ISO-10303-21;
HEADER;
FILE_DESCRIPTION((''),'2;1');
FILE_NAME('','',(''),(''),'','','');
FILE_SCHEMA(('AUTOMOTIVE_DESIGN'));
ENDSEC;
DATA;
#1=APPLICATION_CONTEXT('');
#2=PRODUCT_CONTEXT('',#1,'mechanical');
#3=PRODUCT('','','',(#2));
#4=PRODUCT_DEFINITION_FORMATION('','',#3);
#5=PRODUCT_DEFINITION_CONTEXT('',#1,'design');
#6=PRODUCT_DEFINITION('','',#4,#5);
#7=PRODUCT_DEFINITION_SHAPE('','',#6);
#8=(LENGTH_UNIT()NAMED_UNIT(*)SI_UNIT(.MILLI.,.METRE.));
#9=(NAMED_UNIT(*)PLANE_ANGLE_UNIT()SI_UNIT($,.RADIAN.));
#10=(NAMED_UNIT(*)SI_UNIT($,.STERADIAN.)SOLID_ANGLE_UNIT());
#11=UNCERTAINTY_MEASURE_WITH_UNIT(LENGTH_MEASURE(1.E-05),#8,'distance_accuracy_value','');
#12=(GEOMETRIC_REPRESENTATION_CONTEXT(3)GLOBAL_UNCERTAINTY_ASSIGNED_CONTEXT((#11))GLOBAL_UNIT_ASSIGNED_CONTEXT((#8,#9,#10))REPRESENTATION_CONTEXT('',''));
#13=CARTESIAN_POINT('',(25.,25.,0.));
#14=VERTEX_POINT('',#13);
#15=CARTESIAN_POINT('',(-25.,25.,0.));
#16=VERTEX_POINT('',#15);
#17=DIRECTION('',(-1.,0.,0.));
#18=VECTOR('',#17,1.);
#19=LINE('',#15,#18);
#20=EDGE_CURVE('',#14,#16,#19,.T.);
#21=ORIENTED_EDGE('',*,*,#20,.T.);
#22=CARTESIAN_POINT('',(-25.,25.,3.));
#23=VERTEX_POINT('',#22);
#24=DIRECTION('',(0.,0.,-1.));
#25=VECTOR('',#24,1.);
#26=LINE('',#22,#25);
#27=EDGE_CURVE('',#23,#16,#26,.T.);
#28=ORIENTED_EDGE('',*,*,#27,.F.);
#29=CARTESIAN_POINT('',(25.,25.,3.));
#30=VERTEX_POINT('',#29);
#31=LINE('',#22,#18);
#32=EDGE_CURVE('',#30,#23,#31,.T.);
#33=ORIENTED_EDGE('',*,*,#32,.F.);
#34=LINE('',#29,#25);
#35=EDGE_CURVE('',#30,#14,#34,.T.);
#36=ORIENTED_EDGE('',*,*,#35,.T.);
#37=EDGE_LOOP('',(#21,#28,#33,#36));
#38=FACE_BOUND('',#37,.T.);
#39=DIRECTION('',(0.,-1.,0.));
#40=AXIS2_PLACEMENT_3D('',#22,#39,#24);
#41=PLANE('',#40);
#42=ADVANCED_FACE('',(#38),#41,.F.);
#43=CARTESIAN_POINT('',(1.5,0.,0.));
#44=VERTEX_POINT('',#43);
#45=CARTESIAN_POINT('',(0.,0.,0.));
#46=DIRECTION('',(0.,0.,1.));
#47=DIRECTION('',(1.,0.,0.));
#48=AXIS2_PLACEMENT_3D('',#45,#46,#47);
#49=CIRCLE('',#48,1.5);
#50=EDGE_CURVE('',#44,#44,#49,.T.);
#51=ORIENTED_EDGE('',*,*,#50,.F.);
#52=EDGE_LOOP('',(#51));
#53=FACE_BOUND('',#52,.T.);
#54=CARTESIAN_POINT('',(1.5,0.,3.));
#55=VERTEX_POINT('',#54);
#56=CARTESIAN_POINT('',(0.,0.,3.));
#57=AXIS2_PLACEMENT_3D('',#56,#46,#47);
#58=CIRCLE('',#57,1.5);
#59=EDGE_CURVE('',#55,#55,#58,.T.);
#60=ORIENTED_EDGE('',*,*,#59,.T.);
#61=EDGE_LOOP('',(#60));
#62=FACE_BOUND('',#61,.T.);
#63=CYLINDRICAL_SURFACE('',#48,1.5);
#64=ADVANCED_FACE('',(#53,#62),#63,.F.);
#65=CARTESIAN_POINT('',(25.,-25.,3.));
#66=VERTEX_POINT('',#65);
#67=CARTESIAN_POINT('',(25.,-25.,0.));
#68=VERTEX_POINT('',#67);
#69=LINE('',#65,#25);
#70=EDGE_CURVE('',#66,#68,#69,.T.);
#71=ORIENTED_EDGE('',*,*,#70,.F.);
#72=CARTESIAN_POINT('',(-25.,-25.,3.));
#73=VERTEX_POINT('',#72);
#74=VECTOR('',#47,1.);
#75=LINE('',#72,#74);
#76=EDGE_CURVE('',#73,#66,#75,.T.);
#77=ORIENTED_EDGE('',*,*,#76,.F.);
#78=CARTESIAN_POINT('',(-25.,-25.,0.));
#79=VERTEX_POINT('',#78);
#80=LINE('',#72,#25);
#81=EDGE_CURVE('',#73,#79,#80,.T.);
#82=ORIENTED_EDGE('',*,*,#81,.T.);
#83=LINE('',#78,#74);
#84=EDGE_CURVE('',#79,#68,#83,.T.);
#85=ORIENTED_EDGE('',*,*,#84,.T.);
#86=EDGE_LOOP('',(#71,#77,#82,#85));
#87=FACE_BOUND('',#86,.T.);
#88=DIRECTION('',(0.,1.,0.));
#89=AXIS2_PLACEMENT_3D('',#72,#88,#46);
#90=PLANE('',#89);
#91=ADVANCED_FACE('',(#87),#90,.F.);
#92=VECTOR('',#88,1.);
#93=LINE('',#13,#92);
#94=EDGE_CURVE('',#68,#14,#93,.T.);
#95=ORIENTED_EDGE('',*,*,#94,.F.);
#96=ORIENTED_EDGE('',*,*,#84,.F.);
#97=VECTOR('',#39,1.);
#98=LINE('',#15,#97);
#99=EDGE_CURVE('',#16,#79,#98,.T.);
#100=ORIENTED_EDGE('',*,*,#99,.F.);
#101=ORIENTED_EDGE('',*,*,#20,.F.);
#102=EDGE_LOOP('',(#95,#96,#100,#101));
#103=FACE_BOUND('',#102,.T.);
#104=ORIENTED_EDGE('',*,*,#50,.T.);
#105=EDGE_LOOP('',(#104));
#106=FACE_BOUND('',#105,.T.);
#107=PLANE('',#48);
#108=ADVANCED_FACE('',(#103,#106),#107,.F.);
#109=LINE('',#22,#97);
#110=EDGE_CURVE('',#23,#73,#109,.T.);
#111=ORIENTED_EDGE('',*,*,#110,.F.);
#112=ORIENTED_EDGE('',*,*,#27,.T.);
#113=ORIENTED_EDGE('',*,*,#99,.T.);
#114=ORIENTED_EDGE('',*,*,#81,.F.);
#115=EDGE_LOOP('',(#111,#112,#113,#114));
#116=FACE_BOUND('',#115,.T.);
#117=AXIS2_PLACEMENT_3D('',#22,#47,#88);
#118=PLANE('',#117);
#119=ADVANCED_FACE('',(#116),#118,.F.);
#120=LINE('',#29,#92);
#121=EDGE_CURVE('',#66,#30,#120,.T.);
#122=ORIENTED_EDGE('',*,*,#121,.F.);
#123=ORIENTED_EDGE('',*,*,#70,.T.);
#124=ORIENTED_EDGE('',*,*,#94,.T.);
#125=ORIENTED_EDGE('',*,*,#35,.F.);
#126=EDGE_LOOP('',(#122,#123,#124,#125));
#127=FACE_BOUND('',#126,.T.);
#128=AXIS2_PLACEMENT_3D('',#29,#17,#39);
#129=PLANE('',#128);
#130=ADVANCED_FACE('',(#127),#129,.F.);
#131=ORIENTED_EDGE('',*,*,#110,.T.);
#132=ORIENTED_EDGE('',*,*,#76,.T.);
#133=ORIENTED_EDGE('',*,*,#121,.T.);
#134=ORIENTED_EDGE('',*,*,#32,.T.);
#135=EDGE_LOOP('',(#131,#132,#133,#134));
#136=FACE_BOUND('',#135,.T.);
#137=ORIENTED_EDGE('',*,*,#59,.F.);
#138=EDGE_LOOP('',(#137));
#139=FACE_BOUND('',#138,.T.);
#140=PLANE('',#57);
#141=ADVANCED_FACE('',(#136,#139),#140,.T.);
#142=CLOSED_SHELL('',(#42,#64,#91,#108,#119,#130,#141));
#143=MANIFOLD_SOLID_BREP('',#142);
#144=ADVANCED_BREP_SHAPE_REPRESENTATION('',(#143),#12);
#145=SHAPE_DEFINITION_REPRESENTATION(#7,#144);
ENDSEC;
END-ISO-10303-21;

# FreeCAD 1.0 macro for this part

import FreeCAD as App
import Part
import Sketcher
Q = App.Units.Quantity


def add_polygon(sketch, points):
    """Adds a closed chain of lines whose ends are joined by coincident constraints."""
    first, n = sketch.GeometryCount, len(points)
    for a, b in zip(points, points[1:] + points[:1]):
        sketch.addGeometry(Part.LineSegment(App.Vector(*a, 0), App.Vector(*b, 0)), False)
    for i in range(n):
        sketch.addConstraint(Sketcher.Constraint("Coincident", first + i, 2, first + (i + 1) % n, 1))

doc = App.newDocument("Part")
params = doc.addObject("Spreadsheet::Sheet", "Params")
for row, (alias, value) in enumerate([
    ("sketch1_width", "50 mm"),
    ("pad1_length", "3 mm"),
    ("sketch2_diameter", "3 mm"),
], start=1):
    params.set(f"A{row}", alias)
    params.set(f"B{row}", "=" + value)
    params.setAlias(f"B{row}", alias)

body = doc.addObject("PartDesign::Body", "Body")

sketch1 = body.newObject("Sketcher::SketchObject", "Sketch")
sketch1.AttachmentSupport = (doc.getObject("XY_Plane"), [""])
sketch1.MapMode = "FlatFace"
add_polygon(sketch1, [(-25, 25), (-25, -25), (25, -25), (25, 25)])
sketch1.addConstraint([
    Sketcher.Constraint("Vertical", 0),
    Sketcher.Constraint("Horizontal", 1),
    Sketcher.Constraint("Vertical", 2),
    Sketcher.Constraint("Horizontal", 3),
    Sketcher.Constraint("Symmetric", 0, 2, 2, 2, -1, 1),
    Sketcher.Constraint("Equal", 3, 0),
    Sketcher.Constraint("DistanceX", 1, 1, 1, 2, Q("50 mm")),
])
sketch1.setExpression("Constraints[10]", "Params.sketch1_width")
pad1 = body.newObject("PartDesign::Pad", "Pad")
pad1.Profile = sketch1
pad1.setExpression("Length", "Params.pad1_length")

sketch2 = body.newObject("Sketcher::SketchObject", "Sketch001")
sketch2.AttachmentSupport = (doc.getObject("XY_Plane"), [""])
sketch2.MapMode = "FlatFace"
sketch2.AttachmentOffset = App.Placement(App.Vector(0, 0, 3), App.Rotation())
sketch2.addGeometry(Part.Circle(App.Vector(0, 0, 0), App.Vector(0, 0, 1), 1.5), False)
sketch2.addConstraint([
    Sketcher.Constraint("Coincident", 0, 3, -1, 1),
    Sketcher.Constraint("Diameter", 0, Q("3 mm")),
])
sketch2.setExpression("Constraints[1]", "Params.sketch2_diameter")
pocket1 = body.newObject("PartDesign::Pocket", "Pocket")
pocket1.Profile = sketch2
pocket1.Type = "ThroughAll"
pocket1.Midplane = True

doc.recompute()
